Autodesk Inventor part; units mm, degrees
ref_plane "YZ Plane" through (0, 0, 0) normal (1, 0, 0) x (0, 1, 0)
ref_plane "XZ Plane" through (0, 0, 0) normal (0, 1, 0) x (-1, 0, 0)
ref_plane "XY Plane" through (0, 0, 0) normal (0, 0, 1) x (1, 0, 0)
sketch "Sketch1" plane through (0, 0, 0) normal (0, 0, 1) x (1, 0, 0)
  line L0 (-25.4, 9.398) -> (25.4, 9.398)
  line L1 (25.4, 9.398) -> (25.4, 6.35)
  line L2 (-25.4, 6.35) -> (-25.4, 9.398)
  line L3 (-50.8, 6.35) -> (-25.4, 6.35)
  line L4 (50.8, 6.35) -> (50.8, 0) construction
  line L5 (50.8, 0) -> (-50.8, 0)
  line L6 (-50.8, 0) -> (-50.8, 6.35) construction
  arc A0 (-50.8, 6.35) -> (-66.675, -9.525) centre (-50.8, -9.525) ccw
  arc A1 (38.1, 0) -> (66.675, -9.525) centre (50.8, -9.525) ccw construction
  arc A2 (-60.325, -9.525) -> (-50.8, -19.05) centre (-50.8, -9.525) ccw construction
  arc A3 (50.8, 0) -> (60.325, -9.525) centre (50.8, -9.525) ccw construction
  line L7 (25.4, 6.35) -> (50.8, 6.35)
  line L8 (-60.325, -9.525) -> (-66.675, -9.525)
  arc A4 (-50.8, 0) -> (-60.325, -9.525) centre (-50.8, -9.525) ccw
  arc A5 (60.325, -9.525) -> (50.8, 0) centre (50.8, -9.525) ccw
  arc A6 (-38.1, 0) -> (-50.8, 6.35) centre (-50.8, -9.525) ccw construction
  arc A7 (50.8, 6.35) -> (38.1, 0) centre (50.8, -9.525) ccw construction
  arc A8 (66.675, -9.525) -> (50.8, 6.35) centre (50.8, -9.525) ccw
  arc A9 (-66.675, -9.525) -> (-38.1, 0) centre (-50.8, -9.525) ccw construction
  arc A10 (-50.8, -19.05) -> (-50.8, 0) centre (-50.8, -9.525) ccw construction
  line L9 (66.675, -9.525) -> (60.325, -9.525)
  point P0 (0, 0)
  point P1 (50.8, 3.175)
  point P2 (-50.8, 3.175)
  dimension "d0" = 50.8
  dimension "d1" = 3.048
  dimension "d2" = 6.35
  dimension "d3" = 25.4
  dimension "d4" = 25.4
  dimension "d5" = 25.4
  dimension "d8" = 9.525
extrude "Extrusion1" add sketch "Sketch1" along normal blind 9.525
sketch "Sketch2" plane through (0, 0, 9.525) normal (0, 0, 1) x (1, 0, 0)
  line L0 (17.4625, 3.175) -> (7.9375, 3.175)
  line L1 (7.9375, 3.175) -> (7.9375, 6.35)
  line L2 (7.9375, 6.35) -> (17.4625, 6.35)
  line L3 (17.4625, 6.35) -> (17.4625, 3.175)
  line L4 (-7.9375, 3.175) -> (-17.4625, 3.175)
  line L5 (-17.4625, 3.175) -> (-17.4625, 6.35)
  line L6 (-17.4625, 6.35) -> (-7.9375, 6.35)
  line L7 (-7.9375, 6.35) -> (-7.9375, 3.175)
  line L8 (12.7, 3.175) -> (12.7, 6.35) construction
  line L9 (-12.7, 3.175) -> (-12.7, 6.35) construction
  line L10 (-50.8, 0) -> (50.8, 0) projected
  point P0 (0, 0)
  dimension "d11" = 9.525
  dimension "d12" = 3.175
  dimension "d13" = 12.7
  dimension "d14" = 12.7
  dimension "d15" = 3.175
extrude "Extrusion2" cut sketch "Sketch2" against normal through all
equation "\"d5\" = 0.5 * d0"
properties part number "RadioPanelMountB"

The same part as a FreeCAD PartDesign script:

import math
import FreeCAD as App
import Part
import Sketcher
from FreeCAD import Vector
Q = App.Units.Quantity

doc = App.newDocument("Part")
body = doc.addObject("PartDesign::Body", "Body")

# Sketch on XY plane
sketch1 = body.newObject("Sketcher::SketchObject", "Sketch")
sketch1.AttachmentSupport = (doc.getObject("XY_Plane"), [""])
sketch1.MapMode = "FlatFace"
sketch1.addGeometry(Part.LineSegment(Vector(25.4, 9.4, 0), Vector(-25.4, 9.4, 0)), False)
sketch1.addGeometry(Part.LineSegment(Vector(-25.4, 9.4, 0), Vector(-25.4, 6.3, 0)), False)
sketch1.addGeometry(Part.LineSegment(Vector(-25.4, 6.3, 0), Vector(-50.8, 6.3, 0)), False)
sketch1.addGeometry(Part.ArcOfCircle(Part.Circle(Vector(-50.8, -9.5, 0), Vector(0, 0, 1), 15.9), math.radians(90), math.radians(180)), False)
sketch1.addGeometry(Part.LineSegment(Vector(-66.7, -9.5, 0), Vector(-60.3, -9.5, 0)), False)
sketch1.addGeometry(Part.ArcOfCircle(Part.Circle(Vector(-50.8, -9.5, 0), Vector(0, 0, 1), 9.5), math.radians(90), math.radians(180)), False)
sketch1.addGeometry(Part.LineSegment(Vector(-50.8, 0, 0), Vector(50.8, 0, 0)), False)
sketch1.addGeometry(Part.ArcOfCircle(Part.Circle(Vector(50.8, -9.5, 0), Vector(0, 0, 1), 9.5), math.radians(0), math.radians(90)), False)
sketch1.addGeometry(Part.LineSegment(Vector(60.3, -9.5, 0), Vector(66.7, -9.5, 0)), False)
sketch1.addGeometry(Part.ArcOfCircle(Part.Circle(Vector(50.8, -9.5, 0), Vector(0, 0, 1), 15.9), math.radians(0), math.radians(90)), False)
sketch1.addGeometry(Part.LineSegment(Vector(50.8, 6.3, 0), Vector(25.4, 6.3, 0)), False)
sketch1.addGeometry(Part.LineSegment(Vector(25.4, 6.3, 0), Vector(25.4, 9.4, 0)), False)
sketch1.addConstraint(Sketcher.Constraint("Coincident", 0, 2, 1, 1))
sketch1.addConstraint(Sketcher.Constraint("Coincident", 1, 2, 2, 1))
sketch1.addConstraint(Sketcher.Constraint("Tangent", 2, 2, 3, 1))
sketch1.addConstraint(Sketcher.Constraint("Coincident", 3, 2, 4, 1))
sketch1.addConstraint(Sketcher.Constraint("Coincident", 4, 2, 5, 2))
sketch1.addConstraint(Sketcher.Constraint("Tangent", 5, 1, 6, 1))
sketch1.addConstraint(Sketcher.Constraint("Tangent", 6, 2, 7, 2))
sketch1.addConstraint(Sketcher.Constraint("Coincident", 7, 1, 8, 1))
sketch1.addConstraint(Sketcher.Constraint("Coincident", 8, 2, 9, 1))
sketch1.addConstraint(Sketcher.Constraint("Tangent", 9, 2, 10, 1))
sketch1.addConstraint(Sketcher.Constraint("Coincident", 10, 2, 11, 1))
sketch1.addConstraint(Sketcher.Constraint("Coincident", 11, 2, 0, 1))
sketch1.addConstraint(Sketcher.Constraint("Horizontal", 0))
sketch1.addConstraint(Sketcher.Constraint("Vertical", 1))
sketch1.addConstraint(Sketcher.Constraint("Horizontal", 2))
sketch1.addConstraint(Sketcher.Constraint("Horizontal", 4))
sketch1.addConstraint(Sketcher.Constraint("Horizontal", 6))
sketch1.addConstraint(Sketcher.Constraint("Horizontal", 8))
sketch1.addConstraint(Sketcher.Constraint("Horizontal", 10))
sketch1.addConstraint(Sketcher.Constraint("Vertical", 11))
sketch1.addConstraint(Sketcher.Constraint("Coincident", 5, 3, 3, 3))
sketch1.addConstraint(Sketcher.Constraint("Coincident", 9, 3, 7, 3))
sketch1.addConstraint(Sketcher.Constraint("Equal", 5, 7))
sketch1.addConstraint(Sketcher.Constraint("Equal", 3, 9))
sketch1.addConstraint(Sketcher.Constraint("Symmetric", 5, 1, 6, 2, -1, 1))
sketch1.addConstraint(Sketcher.Constraint("Horizontal", 9, 3, 3, 2))
sketch1.addConstraint(Sketcher.Constraint("Horizontal", 4, 2, 7, 1))
sketch1.addConstraint(Sketcher.Constraint("Equal", 2, 10))
sketch1.addConstraint(Sketcher.Constraint("DistanceX", 0, 2, 0, 1, Q("2 in")))
sketch1.addConstraint(Sketcher.Constraint("DistanceX", 2, 2, 2, 1, Q("1 in")))
sketch1.addConstraint(Sketcher.Constraint("Radius", 5, Q("0.375 in")))
sketch1.addConstraint(Sketcher.Constraint("DistanceX", 4, 1, 4, 2, Q("0.25 in")))
sketch1.addConstraint(Sketcher.Constraint("DistanceY", 1, 2, 1, 1, Q("0.12 in")))
pad1 = body.newObject("PartDesign::Pad", "Pad")
pad1.Profile = sketch1
pad1.Length = Q("0.375 in")

# Sketch on XY plane
sketch2 = body.newObject("Sketcher::SketchObject", "Sketch001")
sketch2.AttachmentSupport = (doc.getObject("XY_Plane"), [""])
sketch2.MapMode = "FlatFace"
sketch2.AttachmentOffset = App.Placement(Vector(0, 0, 0.375 * 25.4), App.Rotation())
sketch2.addGeometry(Part.LineSegment(Vector(7.9, 3.2, 0), Vector(17.5, 3.2, 0)), False)
sketch2.addGeometry(Part.LineSegment(Vector(17.5, 3.2, 0), Vector(17.5, 6.3, 0)), False)
sketch2.addGeometry(Part.LineSegment(Vector(17.5, 6.3, 0), Vector(7.9, 6.3, 0)), False)
sketch2.addGeometry(Part.LineSegment(Vector(7.9, 6.3, 0), Vector(7.9, 3.2, 0)), False)
sketch2.addGeometry(Part.LineSegment(Vector(-17.5, 3.2, 0), Vector(-7.9, 3.2, 0)), False)
sketch2.addGeometry(Part.LineSegment(Vector(-7.9, 3.2, 0), Vector(-7.9, 6.3, 0)), False)
sketch2.addGeometry(Part.LineSegment(Vector(-7.9, 6.3, 0), Vector(-17.5, 6.3, 0)), False)
sketch2.addGeometry(Part.LineSegment(Vector(-17.5, 6.3, 0), Vector(-17.5, 3.2, 0)), False)
sketch2.addConstraint(Sketcher.Constraint("Coincident", 0, 2, 1, 1))
sketch2.addConstraint(Sketcher.Constraint("Coincident", 1, 2, 2, 1))
sketch2.addConstraint(Sketcher.Constraint("Coincident", 2, 2, 3, 1))
sketch2.addConstraint(Sketcher.Constraint("Coincident", 3, 2, 0, 1))
sketch2.addConstraint(Sketcher.Constraint("Coincident", 4, 2, 5, 1))
sketch2.addConstraint(Sketcher.Constraint("Coincident", 5, 2, 6, 1))
sketch2.addConstraint(Sketcher.Constraint("Coincident", 6, 2, 7, 1))
sketch2.addConstraint(Sketcher.Constraint("Coincident", 7, 2, 4, 1))
sketch2.addConstraint(Sketcher.Constraint("Horizontal", 0))
sketch2.addConstraint(Sketcher.Constraint("Vertical", 1))
sketch2.addConstraint(Sketcher.Constraint("Horizontal", 2))
sketch2.addConstraint(Sketcher.Constraint("Vertical", 3))
sketch2.addConstraint(Sketcher.Constraint("Horizontal", 4))
sketch2.addConstraint(Sketcher.Constraint("Vertical", 5))
sketch2.addConstraint(Sketcher.Constraint("Horizontal", 6))
sketch2.addConstraint(Sketcher.Constraint("Vertical", 7))
sketch2.addConstraint(Sketcher.Constraint("Symmetric", 3, 2, 4, 2, -2))
sketch2.addConstraint(Sketcher.Constraint("Symmetric", 1, 2, 6, 2, -2))
sketch2.addConstraint(Sketcher.Constraint("DistanceX", 0, 1, 0, 2, Q("0.375 in")))
sketch2.addConstraint(Sketcher.Constraint("DistanceY", 1, 1, 1, 2, Q("0.125 in")))
sketch2.addConstraint(Sketcher.Constraint("DistanceY", -1, 1, 0, 2, Q("0.125 in")))
sketch2.addConstraint(Sketcher.Constraint("DistanceX", 4, 2, 0, 2, Q("1 in")))
pocket1 = body.newObject("PartDesign::Pocket", "Pocket")
pocket1.Profile = sketch2
pocket1.Type = "ThroughAll"

doc.recompute()
